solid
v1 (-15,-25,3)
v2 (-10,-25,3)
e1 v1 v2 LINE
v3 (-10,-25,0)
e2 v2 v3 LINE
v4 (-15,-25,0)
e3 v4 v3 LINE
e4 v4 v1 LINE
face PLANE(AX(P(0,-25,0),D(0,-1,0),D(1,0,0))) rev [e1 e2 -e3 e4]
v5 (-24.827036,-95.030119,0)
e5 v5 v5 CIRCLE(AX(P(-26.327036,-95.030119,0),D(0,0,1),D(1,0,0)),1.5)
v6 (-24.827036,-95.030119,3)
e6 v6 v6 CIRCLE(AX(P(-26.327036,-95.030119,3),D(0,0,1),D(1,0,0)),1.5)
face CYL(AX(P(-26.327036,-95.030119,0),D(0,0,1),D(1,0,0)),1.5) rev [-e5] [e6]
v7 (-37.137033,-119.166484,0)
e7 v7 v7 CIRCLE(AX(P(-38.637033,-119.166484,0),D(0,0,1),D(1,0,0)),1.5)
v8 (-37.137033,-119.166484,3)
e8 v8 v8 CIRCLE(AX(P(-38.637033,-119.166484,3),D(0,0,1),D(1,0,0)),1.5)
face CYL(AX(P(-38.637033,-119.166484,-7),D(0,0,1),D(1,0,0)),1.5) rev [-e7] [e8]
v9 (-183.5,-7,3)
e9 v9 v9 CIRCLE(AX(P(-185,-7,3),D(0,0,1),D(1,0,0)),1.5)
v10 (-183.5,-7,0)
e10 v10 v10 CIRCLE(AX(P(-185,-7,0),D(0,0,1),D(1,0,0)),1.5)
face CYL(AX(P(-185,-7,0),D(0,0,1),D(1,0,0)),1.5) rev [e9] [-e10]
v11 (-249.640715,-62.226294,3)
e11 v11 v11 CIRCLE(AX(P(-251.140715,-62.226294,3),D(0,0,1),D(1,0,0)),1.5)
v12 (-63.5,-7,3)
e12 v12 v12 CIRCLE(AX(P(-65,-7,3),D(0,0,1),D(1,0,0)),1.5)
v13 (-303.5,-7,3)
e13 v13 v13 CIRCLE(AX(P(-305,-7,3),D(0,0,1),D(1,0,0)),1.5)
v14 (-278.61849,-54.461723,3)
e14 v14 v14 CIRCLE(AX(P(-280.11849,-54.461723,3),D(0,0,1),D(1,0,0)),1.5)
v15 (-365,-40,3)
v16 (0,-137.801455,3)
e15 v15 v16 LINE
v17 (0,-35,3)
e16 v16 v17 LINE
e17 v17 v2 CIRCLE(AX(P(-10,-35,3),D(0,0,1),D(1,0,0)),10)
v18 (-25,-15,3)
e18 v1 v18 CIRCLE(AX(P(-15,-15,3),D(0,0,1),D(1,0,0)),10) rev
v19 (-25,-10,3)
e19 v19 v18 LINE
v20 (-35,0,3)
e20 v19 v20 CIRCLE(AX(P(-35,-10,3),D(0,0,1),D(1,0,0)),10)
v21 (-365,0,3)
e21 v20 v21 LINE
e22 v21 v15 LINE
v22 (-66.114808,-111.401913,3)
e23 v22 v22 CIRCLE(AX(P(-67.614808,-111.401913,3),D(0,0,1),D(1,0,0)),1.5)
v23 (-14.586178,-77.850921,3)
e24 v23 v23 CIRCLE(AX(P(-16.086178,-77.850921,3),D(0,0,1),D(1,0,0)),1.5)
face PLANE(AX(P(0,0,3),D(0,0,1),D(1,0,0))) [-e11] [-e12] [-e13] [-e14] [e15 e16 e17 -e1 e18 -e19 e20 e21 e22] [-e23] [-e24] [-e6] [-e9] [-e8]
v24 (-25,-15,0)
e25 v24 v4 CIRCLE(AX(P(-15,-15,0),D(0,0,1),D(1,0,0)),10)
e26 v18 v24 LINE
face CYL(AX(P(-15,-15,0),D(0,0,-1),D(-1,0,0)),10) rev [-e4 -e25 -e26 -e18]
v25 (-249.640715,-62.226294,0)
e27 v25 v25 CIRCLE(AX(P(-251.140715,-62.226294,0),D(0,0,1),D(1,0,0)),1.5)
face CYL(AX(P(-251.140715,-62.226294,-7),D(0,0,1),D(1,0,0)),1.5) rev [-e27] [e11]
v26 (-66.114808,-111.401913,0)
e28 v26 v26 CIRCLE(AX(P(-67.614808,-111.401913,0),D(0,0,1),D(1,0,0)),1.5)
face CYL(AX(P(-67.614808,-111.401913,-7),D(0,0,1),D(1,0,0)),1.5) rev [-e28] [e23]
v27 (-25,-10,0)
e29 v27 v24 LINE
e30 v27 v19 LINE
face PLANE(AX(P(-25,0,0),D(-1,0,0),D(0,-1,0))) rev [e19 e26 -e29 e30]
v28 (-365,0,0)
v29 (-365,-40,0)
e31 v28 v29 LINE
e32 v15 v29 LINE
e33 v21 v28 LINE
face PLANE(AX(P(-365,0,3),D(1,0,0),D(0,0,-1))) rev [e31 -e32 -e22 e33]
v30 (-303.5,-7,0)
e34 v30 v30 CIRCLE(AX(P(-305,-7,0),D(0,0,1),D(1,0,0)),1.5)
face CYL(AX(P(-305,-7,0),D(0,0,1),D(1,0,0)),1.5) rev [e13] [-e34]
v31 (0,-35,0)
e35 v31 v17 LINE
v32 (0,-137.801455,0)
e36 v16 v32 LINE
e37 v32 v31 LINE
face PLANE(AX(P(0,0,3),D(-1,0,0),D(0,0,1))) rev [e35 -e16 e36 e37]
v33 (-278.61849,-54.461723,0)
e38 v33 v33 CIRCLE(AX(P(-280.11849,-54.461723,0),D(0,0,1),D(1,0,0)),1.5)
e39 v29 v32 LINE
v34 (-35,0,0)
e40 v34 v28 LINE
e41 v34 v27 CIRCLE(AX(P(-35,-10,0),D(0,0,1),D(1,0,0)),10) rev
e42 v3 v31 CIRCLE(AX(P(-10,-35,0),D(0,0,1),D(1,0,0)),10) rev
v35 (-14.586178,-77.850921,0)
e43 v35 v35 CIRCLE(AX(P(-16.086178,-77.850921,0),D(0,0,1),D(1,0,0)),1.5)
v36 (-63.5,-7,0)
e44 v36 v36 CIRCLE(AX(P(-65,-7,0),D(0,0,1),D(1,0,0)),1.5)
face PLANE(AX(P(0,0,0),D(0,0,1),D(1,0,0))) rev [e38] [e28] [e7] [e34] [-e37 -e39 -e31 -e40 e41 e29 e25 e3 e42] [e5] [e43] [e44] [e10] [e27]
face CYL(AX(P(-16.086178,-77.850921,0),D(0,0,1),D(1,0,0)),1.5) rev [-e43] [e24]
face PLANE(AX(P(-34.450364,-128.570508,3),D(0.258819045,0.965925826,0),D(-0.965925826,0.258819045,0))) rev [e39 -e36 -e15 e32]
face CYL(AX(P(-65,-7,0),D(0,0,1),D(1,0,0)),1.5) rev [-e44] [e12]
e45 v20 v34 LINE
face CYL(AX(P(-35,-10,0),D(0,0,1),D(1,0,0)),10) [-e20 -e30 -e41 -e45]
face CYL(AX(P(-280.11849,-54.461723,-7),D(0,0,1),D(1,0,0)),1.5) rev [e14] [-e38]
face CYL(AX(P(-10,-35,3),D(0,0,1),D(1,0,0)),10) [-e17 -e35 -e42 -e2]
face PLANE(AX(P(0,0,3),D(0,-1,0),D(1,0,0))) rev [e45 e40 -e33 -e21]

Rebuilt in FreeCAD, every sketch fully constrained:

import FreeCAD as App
import Part
import Sketcher

V = App.Vector
Q = App.Units.Quantity


def edges_at(feature, points):
    """Names of the edges that pass closest to the given points."""
    edges = feature.Shape.Edges
    near = lambda p: min(range(len(edges)), key=lambda i: edges[i].distToShape(Part.Vertex(*p))[0])
    return sorted({f"Edge{near(p) + 1}" for p in points})

doc = App.newDocument("Part")
params = doc.addObject("Spreadsheet::Sheet", "Params")
for row, (alias, value) in enumerate([
    ("sketch1_width", "365 mm"),
    ("sketch1_height", "40 mm"),
    ("pad1_length", "3 mm"),
    ("sketch2_width", "25 mm"),
    ("sketch3_diameter", "3 mm"),
    ("fillet_radius", "10 mm"),
    ("sketch4_diameter", "3 mm"),
    ("pocket3_length", "10 mm"),
    ("sketch5_diameter", "3 mm"),
], start=1):
    params.set(f"A{row}", alias)
    params.set(f"B{row}", "=" + value)
    params.setAlias(f"B{row}", alias)

body = doc.addObject("PartDesign::Body", "Body")

# Sketch on XY plane
sketch1 = body.newObject("Sketcher::SketchObject", "Sketch")
sketch1.AttachmentSupport = (doc.getObject("XY_Plane"), [""])
sketch1.MapMode = "FlatFace"
sketch1.addGeometry(Part.LineSegment(V(0, -138, 0), V(0, 0, 0)), False)
sketch1.addGeometry(Part.LineSegment(V(0, 0, 0), V(-365, 0, 0)), False)
sketch1.addGeometry(Part.LineSegment(V(-365, 0, 0), V(-365, -40, 0)), False)
sketch1.addGeometry(Part.LineSegment(V(-365, -40, 0), V(0, -138, 0)), False)
sketch1.addConstraint(Sketcher.Constraint("Coincident", 0, 2, 1, 1))
sketch1.addConstraint(Sketcher.Constraint("Coincident", 1, 2, 2, 1))
sketch1.addConstraint(Sketcher.Constraint("Coincident", 2, 2, 3, 1))
sketch1.addConstraint(Sketcher.Constraint("Coincident", 3, 2, 0, 1))
sketch1.addConstraint(Sketcher.Constraint("Vertical", 0))
sketch1.addConstraint(Sketcher.Constraint("Horizontal", 1))
sketch1.addConstraint(Sketcher.Constraint("Vertical", 2))
sketch1.addConstraint(Sketcher.Constraint("Coincident", 0, 2, -1, 1))
sketch1.addConstraint(Sketcher.Constraint("DistanceX", 1, 2, 1, 1, 365.0))
sketch1.addConstraint(Sketcher.Constraint("DistanceY", 2, 2, 2, 1, 40.0))
sketch1.addConstraint(Sketcher.Constraint("Angle", 3, Q("-15 deg")))
sketch1.setExpression("Constraints[8]", "Params.sketch1_width")
sketch1.setExpression("Constraints[9]", "Params.sketch1_height")
pad1 = body.newObject("PartDesign::Pad", "Pad")
pad1.Profile = sketch1
pad1.setExpression("Length", "Params.pad1_length")

# Sketch on XY plane
sketch2 = body.newObject("Sketcher::SketchObject", "Sketch001")
sketch2.AttachmentSupport = (doc.getObject("XY_Plane"), [""])
sketch2.MapMode = "FlatFace"
sketch2.AttachmentOffset = App.Placement(V(0, 0, 3), App.Rotation())
sketch2.addGeometry(Part.LineSegment(V(-25, 0, 0), V(-25, -25, 0)), False)
sketch2.addGeometry(Part.LineSegment(V(-25, -25, 0), V(0, -25, 0)), False)
sketch2.addGeometry(Part.LineSegment(V(0, -25, 0), V(0, 0, 0)), False)
sketch2.addGeometry(Part.LineSegment(V(0, 0, 0), V(-25, 0, 0)), False)
sketch2.addConstraint(Sketcher.Constraint("Coincident", 0, 2, 1, 1))
sketch2.addConstraint(Sketcher.Constraint("Coincident", 1, 2, 2, 1))
sketch2.addConstraint(Sketcher.Constraint("Coincident", 2, 2, 3, 1))
sketch2.addConstraint(Sketcher.Constraint("Coincident", 3, 2, 0, 1))
sketch2.addConstraint(Sketcher.Constraint("Vertical", 0))
sketch2.addConstraint(Sketcher.Constraint("Horizontal", 1))
sketch2.addConstraint(Sketcher.Constraint("Vertical", 2))
sketch2.addConstraint(Sketcher.Constraint("Horizontal", 3))
sketch2.addConstraint(Sketcher.Constraint("Coincident", 2, 2, -1, 1))
sketch2.addConstraint(Sketcher.Constraint("Equal", 3, 0))
sketch2.addConstraint(Sketcher.Constraint("DistanceX", 1, 1, 1, 2, 25.0))
sketch2.setExpression("Constraints[10]", "Params.sketch2_width")
pocket1 = body.newObject("PartDesign::Pocket", "Pocket")
pocket1.Profile = sketch2
pocket1.Type = "ThroughAll"

# Sketch on XY plane
sketch3 = body.newObject("Sketcher::SketchObject", "Sketch002")
sketch3.AttachmentSupport = (doc.getObject("XY_Plane"), [""])
sketch3.MapMode = "FlatFace"
sketch3.AttachmentOffset = App.Placement(V(0, 0, 3), App.Rotation())
sketch3.addGeometry(Part.Circle(V(-305, -7, 0), V(0, 0, 1), 1.5), False)
sketch3.addGeometry(Part.Circle(V(-185, -7, 0), V(0, 0, 1), 1.5), False)
sketch3.addGeometry(Part.Circle(V(-65, -7, 0), V(0, 0, 1), 1.5), False)
sketch3.addConstraint(Sketcher.Constraint("Equal", 0, 1))
sketch3.addConstraint(Sketcher.Constraint("Equal", 1, 2))
sketch3.addConstraint(Sketcher.Constraint("Horizontal", 0, 3, 1, 3))
sketch3.addConstraint(Sketcher.Constraint("Horizontal", 1, 3, 2, 3))
sketch3.addConstraint(Sketcher.Constraint("Diameter", 0, 3.0))
sketch3.addConstraint(Sketcher.Constraint("DistanceX", 0, 3, -1, 1, 305.0))
sketch3.addConstraint(Sketcher.Constraint("DistanceY", 0, 3, -1, 1, 7.0))
sketch3.addConstraint(Sketcher.Constraint("DistanceX", 1, 3, -1, 1, 185.0))
sketch3.addConstraint(Sketcher.Constraint("DistanceX", 2, 3, -1, 1, 65.0))
sketch3.setExpression("Constraints[4]", "Params.sketch3_diameter")
pocket2 = body.newObject("PartDesign::Pocket", "Pocket001")
pocket2.Profile = sketch3
pocket2.Type = "ThroughAll"
doc.recompute()

fillet = body.newObject("PartDesign::Fillet", "Fillet")
fillet.Base = (pocket2, edges_at(pocket2, [(0, -25, 1.5), (-25, -25, 1.5), (-25, 0, 1.5)]))
fillet.setExpression("Radius", "Params.fillet_radius")

# Sketch on XY plane
sketch4 = body.newObject("Sketcher::SketchObject", "Sketch003")
sketch4.AttachmentSupport = (doc.getObject("XY_Plane"), [""])
sketch4.MapMode = "FlatFace"
sketch4.AttachmentOffset = App.Placement(V(0, 0, 3), App.Rotation())
sketch4.addGeometry(Part.Circle(V(-38.6, -119.2, 0), V(0, 0, 1), 1.5), False)
sketch4.addGeometry(Part.Circle(V(-67.6, -111.4, 0), V(0, 0, 1), 1.5), False)
sketch4.addGeometry(Part.Circle(V(-251.1, -62.2, 0), V(0, 0, 1), 1.5), False)
sketch4.addGeometry(Part.Circle(V(-280.1, -54.5, 0), V(0, 0, 1), 1.5), False)
sketch4.addConstraint(Sketcher.Constraint("Equal", 0, 1))
sketch4.addConstraint(Sketcher.Constraint("Equal", 1, 2))
sketch4.addConstraint(Sketcher.Constraint("Equal", 2, 3))
sketch4.addConstraint(Sketcher.Constraint("Diameter", 0, 3.0))
sketch4.addConstraint(Sketcher.Constraint("DistanceX", 3, 3, -1, 1, 280.11849))
sketch4.addConstraint(Sketcher.Constraint("DistanceY", 0, 3, 1, 3, 7.764571))
sketch4.addConstraint(Sketcher.Constraint("DistanceY", 1, 3, 2, 3, 49.175619))
sketch4.addConstraint(Sketcher.Constraint("DistanceX", 2, 3, 0, 3, 212.503682))
sketch4.addConstraint(Sketcher.Constraint("DistanceY", 2, 3, 3, 3, 7.764571))
sketch4.addConstraint(Sketcher.Constraint("DistanceX", 3, 3, 1, 3, 212.503682))
sketch4.addConstraint(Sketcher.Constraint("DistanceX", 0, 3, -1, 1, 38.637033))
sketch4.addConstraint(Sketcher.Constraint("DistanceY", 0, 3, -1, 1, 119.166484))
sketch4.setExpression("Constraints[3]", "Params.sketch4_diameter")
pocket3 = body.newObject("PartDesign::Pocket", "Pocket002")
pocket3.Profile = sketch4
pocket3.setExpression("Length", "Params.pocket3_length")

# Sketch on XY plane
sketch5 = body.newObject("Sketcher::SketchObject", "Sketch004")
sketch5.AttachmentSupport = (doc.getObject("XY_Plane"), [""])
sketch5.MapMode = "FlatFace"
sketch5.AttachmentOffset = App.Placement(V(0, 0, 3), App.Rotation())
sketch5.addGeometry(Part.Circle(V(-26.3, -95, 0), V(0, 0, 1), 1.5), False)
sketch5.addGeometry(Part.Circle(V(-16.1, -77.9, 0), V(0, 0, 1), 1.5), False)
sketch5.addConstraint(Sketcher.Constraint("Equal", 0, 1))
sketch5.addConstraint(Sketcher.Constraint("Diameter", 0, 3.0))
sketch5.addConstraint(Sketcher.Constraint("DistanceY", 0, 3, -1, 1, 95.030119))
sketch5.addConstraint(Sketcher.Constraint("DistanceX", 1, 3, -1, 1, 16.086178))
sketch5.addConstraint(Sketcher.Constraint("DistanceY", 1, 3, -1, 1, 77.850921))
sketch5.addConstraint(Sketcher.Constraint("DistanceX", 0, 3, -1, 1, 26.327036))
sketch5.setExpression("Constraints[1]", "Params.sketch5_diameter")
pocket4 = body.newObject("PartDesign::Pocket", "Pocket003")
pocket4.Profile = sketch5
pocket4.Type = "ThroughAll"

doc.recompute()
